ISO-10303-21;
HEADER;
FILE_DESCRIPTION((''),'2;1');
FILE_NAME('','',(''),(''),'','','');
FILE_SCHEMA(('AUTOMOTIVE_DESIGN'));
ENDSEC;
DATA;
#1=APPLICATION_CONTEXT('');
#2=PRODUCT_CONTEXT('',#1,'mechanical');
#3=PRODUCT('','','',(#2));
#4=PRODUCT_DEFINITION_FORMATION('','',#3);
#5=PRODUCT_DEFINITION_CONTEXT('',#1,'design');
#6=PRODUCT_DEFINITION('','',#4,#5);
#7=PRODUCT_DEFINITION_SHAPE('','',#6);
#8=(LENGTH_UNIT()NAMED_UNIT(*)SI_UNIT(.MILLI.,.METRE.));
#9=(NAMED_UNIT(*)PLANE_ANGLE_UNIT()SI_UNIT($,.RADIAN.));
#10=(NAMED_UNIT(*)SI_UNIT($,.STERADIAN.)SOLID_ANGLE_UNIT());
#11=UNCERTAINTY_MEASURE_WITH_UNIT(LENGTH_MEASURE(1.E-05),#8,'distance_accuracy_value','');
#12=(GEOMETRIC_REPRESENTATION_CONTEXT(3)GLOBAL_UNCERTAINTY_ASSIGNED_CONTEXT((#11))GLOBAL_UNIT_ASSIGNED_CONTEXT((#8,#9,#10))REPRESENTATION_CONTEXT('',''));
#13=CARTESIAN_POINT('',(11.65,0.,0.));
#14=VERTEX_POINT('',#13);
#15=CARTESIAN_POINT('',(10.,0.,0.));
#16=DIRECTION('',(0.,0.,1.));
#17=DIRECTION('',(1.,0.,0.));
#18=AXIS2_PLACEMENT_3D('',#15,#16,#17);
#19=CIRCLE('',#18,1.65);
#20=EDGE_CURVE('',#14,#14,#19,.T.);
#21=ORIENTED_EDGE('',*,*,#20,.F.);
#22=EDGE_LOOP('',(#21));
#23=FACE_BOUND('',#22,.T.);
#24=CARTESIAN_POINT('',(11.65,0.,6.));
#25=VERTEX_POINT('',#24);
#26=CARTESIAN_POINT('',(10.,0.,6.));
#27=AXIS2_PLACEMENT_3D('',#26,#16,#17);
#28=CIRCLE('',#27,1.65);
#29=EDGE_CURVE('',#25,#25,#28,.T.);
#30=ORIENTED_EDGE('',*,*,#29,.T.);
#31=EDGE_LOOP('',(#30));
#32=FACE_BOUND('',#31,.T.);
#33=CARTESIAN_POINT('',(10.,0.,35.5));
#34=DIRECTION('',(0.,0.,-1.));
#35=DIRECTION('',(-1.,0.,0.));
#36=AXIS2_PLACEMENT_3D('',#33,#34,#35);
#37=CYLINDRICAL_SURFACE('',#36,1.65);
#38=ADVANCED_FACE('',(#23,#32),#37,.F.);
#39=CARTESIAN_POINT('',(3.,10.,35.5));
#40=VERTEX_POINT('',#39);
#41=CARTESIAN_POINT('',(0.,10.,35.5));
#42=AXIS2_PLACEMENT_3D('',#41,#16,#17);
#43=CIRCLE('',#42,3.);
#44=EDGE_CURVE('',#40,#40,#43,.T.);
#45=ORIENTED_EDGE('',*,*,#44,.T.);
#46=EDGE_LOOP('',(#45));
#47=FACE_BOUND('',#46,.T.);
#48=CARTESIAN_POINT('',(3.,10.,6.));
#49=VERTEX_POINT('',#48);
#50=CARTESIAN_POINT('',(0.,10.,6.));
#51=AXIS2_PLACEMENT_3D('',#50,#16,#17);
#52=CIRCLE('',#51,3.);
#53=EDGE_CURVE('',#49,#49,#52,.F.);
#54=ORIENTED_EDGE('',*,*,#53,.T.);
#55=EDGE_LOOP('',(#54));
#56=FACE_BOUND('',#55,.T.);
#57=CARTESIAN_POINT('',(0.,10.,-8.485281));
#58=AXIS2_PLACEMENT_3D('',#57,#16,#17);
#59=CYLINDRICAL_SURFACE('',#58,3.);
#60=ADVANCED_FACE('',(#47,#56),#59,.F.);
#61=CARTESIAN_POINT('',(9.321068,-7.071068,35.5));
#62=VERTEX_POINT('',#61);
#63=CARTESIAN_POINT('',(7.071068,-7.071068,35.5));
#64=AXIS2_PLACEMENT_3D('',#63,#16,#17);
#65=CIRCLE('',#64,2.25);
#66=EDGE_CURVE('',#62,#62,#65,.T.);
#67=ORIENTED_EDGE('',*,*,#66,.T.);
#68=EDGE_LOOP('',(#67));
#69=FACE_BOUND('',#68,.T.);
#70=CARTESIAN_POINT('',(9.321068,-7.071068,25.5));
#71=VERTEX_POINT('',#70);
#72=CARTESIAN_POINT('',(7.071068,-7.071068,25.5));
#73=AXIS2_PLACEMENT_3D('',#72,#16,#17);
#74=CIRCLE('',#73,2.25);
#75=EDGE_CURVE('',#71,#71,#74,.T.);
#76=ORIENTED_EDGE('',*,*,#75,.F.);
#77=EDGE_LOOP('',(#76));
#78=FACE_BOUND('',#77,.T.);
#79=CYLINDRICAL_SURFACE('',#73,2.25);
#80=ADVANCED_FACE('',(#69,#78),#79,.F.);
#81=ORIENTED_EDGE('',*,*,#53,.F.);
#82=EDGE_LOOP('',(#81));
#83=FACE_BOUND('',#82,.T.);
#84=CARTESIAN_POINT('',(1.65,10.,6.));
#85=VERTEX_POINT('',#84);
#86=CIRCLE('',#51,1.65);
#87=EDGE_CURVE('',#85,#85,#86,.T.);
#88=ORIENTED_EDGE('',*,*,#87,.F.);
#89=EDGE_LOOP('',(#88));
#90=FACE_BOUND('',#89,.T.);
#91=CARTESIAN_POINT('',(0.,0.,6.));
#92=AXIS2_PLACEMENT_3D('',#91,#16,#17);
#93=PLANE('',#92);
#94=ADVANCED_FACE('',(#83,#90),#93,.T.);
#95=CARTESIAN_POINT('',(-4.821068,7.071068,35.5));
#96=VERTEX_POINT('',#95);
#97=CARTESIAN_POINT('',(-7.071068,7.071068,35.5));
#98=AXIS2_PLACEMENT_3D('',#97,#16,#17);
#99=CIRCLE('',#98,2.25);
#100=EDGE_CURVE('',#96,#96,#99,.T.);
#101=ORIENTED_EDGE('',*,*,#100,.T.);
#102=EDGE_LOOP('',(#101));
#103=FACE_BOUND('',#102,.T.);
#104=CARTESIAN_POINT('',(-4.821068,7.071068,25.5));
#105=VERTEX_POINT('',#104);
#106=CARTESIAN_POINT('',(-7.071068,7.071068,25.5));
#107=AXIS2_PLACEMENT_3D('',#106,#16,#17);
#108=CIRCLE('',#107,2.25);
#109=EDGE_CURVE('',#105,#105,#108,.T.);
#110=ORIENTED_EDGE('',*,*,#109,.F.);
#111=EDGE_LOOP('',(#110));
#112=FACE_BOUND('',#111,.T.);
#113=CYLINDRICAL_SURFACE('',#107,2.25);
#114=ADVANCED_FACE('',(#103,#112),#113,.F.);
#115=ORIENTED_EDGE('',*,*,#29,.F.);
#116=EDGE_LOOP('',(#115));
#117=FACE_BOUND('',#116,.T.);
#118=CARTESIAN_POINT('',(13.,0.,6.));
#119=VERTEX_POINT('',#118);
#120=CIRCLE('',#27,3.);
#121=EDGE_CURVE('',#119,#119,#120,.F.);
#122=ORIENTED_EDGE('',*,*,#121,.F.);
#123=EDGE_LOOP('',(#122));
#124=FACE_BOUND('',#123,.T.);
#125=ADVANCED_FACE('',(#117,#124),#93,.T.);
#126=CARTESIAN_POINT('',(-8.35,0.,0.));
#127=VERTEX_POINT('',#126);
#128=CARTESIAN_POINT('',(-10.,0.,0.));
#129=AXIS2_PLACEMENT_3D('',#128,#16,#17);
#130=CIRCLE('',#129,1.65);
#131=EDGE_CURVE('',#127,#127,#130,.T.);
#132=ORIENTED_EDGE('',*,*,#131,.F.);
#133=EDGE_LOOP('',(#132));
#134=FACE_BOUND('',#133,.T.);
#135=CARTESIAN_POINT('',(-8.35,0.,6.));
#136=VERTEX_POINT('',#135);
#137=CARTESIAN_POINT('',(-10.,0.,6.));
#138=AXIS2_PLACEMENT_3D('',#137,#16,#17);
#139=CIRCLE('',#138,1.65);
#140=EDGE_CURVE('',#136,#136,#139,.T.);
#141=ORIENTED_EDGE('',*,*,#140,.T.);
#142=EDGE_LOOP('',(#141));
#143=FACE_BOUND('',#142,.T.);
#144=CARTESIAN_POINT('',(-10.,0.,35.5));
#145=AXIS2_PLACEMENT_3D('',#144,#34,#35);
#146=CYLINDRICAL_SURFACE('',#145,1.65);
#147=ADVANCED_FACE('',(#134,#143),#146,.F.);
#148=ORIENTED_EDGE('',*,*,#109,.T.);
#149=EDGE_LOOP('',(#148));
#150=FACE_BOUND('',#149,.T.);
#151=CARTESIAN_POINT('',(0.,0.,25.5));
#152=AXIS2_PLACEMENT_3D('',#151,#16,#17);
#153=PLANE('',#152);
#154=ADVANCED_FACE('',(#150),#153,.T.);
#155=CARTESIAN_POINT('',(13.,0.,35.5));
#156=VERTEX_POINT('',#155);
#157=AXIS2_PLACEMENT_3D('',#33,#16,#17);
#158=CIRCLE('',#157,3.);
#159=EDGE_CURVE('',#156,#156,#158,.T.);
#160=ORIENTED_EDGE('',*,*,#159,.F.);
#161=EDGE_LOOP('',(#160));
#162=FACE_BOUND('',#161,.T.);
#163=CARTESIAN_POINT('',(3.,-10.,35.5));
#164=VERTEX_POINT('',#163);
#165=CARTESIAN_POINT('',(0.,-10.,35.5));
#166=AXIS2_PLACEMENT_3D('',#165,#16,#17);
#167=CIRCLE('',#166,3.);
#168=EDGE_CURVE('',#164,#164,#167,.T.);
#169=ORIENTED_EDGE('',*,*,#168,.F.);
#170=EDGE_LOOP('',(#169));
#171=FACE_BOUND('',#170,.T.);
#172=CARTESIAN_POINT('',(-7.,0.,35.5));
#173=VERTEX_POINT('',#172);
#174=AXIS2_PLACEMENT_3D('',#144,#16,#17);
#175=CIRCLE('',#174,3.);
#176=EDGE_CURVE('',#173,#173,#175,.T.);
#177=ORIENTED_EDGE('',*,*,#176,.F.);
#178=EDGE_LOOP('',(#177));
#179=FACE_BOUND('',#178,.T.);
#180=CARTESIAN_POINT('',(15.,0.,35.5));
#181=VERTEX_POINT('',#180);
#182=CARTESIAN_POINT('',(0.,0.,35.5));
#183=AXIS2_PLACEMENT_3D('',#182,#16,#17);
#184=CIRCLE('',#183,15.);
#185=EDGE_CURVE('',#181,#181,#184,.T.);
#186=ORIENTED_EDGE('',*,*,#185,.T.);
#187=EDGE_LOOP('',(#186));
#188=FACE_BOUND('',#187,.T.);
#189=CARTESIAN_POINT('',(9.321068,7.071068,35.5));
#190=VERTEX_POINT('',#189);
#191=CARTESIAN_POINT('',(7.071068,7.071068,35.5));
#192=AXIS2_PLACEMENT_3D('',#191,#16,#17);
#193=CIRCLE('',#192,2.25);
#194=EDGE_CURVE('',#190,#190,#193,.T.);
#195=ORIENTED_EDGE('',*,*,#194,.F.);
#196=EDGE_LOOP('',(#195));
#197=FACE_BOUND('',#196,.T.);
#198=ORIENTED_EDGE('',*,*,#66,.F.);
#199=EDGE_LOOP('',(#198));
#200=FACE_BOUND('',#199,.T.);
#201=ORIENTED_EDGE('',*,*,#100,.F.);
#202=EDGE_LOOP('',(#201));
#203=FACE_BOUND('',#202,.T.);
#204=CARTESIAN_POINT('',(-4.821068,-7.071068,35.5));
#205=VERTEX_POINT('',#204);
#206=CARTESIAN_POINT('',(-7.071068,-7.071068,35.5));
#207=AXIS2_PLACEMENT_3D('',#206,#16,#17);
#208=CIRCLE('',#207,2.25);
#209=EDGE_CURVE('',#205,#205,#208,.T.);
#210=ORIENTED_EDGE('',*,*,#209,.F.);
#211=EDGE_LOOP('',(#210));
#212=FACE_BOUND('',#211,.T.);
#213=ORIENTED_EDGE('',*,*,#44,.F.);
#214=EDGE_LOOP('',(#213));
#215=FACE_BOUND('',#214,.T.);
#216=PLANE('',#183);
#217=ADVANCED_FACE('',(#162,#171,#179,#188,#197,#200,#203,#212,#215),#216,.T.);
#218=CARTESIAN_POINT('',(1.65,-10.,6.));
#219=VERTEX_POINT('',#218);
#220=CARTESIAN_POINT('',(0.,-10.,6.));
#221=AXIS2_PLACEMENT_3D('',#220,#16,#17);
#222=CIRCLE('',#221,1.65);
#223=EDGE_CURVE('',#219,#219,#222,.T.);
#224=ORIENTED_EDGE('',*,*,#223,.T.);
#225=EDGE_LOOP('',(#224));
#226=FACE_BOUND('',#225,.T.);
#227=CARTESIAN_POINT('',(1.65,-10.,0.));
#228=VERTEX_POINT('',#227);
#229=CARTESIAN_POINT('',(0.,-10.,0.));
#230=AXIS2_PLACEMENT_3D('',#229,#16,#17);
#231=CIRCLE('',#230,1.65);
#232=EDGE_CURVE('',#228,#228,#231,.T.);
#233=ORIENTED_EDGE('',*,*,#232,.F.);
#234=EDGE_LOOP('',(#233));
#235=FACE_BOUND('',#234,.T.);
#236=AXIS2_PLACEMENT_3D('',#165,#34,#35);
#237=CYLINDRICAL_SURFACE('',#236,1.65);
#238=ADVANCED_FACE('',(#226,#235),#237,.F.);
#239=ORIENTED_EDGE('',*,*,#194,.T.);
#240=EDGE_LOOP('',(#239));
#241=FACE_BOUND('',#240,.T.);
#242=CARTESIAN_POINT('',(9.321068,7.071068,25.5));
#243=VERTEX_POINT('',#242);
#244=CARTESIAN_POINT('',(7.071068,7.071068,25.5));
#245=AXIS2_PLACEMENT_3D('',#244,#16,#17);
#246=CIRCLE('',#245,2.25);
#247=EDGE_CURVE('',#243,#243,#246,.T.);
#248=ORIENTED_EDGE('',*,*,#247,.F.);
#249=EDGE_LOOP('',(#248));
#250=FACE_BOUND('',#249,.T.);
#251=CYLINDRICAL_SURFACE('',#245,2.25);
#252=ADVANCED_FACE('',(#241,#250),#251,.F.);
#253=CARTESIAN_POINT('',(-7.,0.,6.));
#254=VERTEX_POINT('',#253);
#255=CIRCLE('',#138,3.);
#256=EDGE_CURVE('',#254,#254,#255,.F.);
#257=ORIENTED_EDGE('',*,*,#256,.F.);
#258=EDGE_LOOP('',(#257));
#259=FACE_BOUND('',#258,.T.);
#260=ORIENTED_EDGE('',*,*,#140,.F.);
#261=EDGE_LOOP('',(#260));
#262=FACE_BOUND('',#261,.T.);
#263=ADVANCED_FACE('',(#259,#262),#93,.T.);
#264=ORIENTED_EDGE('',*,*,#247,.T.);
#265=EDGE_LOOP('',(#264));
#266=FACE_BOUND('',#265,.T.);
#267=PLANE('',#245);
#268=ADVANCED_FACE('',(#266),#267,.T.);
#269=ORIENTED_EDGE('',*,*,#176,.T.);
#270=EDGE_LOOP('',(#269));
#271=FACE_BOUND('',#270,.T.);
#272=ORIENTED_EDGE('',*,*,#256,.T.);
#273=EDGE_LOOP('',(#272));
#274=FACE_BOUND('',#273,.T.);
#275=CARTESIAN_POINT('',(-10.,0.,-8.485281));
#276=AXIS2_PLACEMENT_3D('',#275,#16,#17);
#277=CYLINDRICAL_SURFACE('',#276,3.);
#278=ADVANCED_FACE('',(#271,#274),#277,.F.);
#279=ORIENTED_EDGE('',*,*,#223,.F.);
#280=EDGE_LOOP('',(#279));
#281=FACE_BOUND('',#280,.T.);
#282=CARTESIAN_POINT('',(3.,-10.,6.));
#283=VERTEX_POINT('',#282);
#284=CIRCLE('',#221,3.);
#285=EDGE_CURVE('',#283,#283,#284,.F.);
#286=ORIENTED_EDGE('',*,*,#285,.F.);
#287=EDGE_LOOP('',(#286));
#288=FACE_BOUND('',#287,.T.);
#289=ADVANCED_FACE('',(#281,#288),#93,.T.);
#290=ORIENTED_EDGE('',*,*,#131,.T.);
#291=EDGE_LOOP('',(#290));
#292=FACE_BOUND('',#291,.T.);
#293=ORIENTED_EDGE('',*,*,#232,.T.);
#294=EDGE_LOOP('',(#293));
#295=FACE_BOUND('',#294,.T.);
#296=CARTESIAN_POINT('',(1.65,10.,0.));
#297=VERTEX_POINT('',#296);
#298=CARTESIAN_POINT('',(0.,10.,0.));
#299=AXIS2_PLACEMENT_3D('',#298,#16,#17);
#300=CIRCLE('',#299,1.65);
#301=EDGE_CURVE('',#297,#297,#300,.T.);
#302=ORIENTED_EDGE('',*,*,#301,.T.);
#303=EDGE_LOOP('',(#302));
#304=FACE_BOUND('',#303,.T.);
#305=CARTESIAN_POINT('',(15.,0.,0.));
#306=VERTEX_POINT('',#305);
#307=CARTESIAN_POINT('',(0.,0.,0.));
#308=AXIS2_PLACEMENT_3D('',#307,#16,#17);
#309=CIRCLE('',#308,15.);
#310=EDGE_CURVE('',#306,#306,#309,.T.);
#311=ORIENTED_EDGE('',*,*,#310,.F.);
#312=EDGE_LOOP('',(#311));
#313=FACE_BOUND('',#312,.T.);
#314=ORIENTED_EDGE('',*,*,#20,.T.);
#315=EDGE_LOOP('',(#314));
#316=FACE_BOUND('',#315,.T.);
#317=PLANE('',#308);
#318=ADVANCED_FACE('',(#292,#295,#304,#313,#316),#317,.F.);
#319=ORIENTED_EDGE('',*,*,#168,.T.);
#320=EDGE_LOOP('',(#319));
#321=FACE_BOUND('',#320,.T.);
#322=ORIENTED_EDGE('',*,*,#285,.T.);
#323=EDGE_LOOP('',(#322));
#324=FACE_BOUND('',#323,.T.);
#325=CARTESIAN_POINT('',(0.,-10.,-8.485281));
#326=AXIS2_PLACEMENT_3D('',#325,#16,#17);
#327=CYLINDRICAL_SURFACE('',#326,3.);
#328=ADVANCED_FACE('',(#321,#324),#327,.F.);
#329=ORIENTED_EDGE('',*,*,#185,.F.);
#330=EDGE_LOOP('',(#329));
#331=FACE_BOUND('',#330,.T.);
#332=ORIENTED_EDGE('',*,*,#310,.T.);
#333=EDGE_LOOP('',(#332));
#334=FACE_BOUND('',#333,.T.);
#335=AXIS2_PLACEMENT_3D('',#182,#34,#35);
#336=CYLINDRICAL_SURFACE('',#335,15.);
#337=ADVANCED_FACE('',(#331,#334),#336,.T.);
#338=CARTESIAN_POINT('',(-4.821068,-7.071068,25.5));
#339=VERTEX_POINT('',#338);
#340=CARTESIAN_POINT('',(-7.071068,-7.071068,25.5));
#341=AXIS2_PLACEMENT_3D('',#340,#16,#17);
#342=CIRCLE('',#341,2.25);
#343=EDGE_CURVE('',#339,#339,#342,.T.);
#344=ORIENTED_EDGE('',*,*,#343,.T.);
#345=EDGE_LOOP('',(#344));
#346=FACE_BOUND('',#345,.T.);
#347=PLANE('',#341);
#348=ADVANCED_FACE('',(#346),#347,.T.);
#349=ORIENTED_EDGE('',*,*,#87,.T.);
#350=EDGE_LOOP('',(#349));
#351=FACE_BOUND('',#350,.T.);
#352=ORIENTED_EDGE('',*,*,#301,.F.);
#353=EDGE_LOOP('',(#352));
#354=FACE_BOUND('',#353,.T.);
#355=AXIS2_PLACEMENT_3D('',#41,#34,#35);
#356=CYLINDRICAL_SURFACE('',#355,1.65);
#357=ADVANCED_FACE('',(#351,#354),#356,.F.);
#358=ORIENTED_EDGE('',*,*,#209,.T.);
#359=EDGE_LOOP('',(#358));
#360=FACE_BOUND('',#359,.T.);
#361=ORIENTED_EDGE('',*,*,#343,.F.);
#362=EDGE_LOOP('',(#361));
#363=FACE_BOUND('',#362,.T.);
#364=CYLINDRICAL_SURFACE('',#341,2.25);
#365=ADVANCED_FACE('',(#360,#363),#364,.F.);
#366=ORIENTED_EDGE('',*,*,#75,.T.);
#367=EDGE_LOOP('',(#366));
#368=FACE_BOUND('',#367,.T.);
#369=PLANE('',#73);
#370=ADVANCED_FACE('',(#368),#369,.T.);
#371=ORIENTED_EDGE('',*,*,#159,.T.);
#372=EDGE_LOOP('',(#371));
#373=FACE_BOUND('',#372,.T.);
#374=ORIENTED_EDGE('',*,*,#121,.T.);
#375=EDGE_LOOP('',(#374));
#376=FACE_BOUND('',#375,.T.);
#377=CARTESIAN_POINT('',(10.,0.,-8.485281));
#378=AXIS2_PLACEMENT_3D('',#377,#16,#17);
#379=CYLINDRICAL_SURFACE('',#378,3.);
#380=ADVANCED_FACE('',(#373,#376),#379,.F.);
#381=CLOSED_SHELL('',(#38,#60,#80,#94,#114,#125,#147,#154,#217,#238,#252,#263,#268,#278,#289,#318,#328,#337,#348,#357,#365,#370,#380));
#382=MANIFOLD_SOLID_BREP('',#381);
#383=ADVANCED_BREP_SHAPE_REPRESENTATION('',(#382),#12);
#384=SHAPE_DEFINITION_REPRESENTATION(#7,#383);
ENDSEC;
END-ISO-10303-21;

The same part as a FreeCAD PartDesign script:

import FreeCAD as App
import Part
import Sketcher
from FreeCAD import Vector

doc = App.newDocument("Part")
params = doc.addObject("Spreadsheet::Sheet", "Params")
for row, (alias, value) in enumerate([
    ("sketch1_diameter", "30 mm"),
    ("sketch1_diameter2", "3.3 mm"),
    ("pad1_length", "35.5 mm"),
    ("sketch2_diameter", "4.5 mm"),
    ("pocket1_length", "10 mm"),
    ("sketch3_diameter", "6 mm"),
    ("pocket2_length", "29.5 mm"),
], start=1):
    params.set(f"A{row}", alias)
    params.set(f"B{row}", "=" + value)
    params.setAlias(f"B{row}", alias)

body = doc.addObject("PartDesign::Body", "Body")

# Sketch on XY plane
sketch1 = doc.addObject("Sketcher::SketchObject", "Sketch")
body.addObject(sketch1)
sketch1.AttachmentSupport = (doc.XY_Plane, [""])
sketch1.MapMode = "FlatFace"
sketch1.addGeometry([
    Part.Circle(Vector(0, 0, 0), Vector(0, 0, 1), 15),  # 0
    Part.Circle(Vector(0, -10, 0), Vector(0, 0, 1), 1.6),  # 1
    Part.Circle(Vector(-10, 0, 0), Vector(0, 0, 1), 1.6),  # 2
    Part.Circle(Vector(10, 0, 0), Vector(0, 0, 1), 1.6),  # 3
    Part.Circle(Vector(0, 10, 0), Vector(0, 0, 1), 1.6),  # 4
], False)
sketch1.addConstraint([
    Sketcher.Constraint("Coincident", 0, 3, -1, 1),
    Sketcher.Constraint("Equal", 1, 2),
    Sketcher.Constraint("Equal", 2, 3),
    Sketcher.Constraint("Equal", 3, 4),
    Sketcher.Constraint("Symmetric", 2, 3, 3, 3, -1, 1),
    Sketcher.Constraint("Symmetric", 1, 3, 4, 3, -1, 1),
    Sketcher.Constraint("PointOnObject", 1, 3, -2),
    Sketcher.Constraint("PointOnObject", 2, 3, -1),
    Sketcher.Constraint("Diameter", 0, 30.0),
    Sketcher.Constraint("Diameter", 1, 3.3),
    Sketcher.Constraint("DistanceY", 1, 3, -1, 1, 10.0),
    Sketcher.Constraint("DistanceX", 2, 3, -1, 1, 10.0),
])
sketch1.setExpression("Constraints[8]", "Params.sketch1_diameter")
sketch1.setExpression("Constraints[9]", "Params.sketch1_diameter2")
pad1 = doc.addObject("PartDesign::Pad", "Pad")
body.addObject(pad1)
pad1.Profile = sketch1
pad1.setExpression("Length", "Params.pad1_length")

# Sketch on XY plane
sketch2 = doc.addObject("Sketcher::SketchObject", "Sketch001")
body.addObject(sketch2)
sketch2.AttachmentSupport = (doc.XY_Plane, [""])
sketch2.MapMode = "FlatFace"
sketch2.AttachmentOffset = App.Placement(Vector(0, 0, 35.5), App.Rotation())
sketch2.addGeometry([
    Part.Circle(Vector(7.1, 7.1, 0), Vector(0, 0, 1), 2.2),
    Part.Circle(Vector(7.1, -7.1, 0), Vector(0, 0, 1), 2.2),
    Part.Circle(Vector(-7.1, -7.1, 0), Vector(0, 0, 1), 2.2),
    Part.Circle(Vector(-7.1, 7.1, 0), Vector(0, 0, 1), 2.2),
], False)
sketch2.addConstraint([
    Sketcher.Constraint("Equal", 0, 1),
    Sketcher.Constraint("Equal", 1, 2),
    Sketcher.Constraint("Equal", 2, 3),
    Sketcher.Constraint("Symmetric", 0, 3, 2, 3, -1, 1),
    Sketcher.Constraint("Symmetric", 1, 3, 3, 3, -1, 1),
    Sketcher.Constraint("Symmetric", 1, 3, 2, 3, -2),
    Sketcher.Constraint("Diameter", 0, 4.5),
    Sketcher.Constraint("DistanceX", -1, 1, 0, 3, 7.071068),
    Sketcher.Constraint("DistanceY", -1, 1, 0, 3, 7.071068),
])
sketch2.setExpression("Constraints[6]", "Params.sketch2_diameter")
pocket1 = doc.addObject("PartDesign::Pocket", "Pocket")
body.addObject(pocket1)
pocket1.Profile = sketch2
pocket1.setExpression("Length", "Params.pocket1_length")

# Sketch on XY plane
sketch3 = doc.addObject("Sketcher::SketchObject", "Sketch002")
body.addObject(sketch3)
sketch3.AttachmentSupport = (doc.XY_Plane, [""])
sketch3.MapMode = "FlatFace"
sketch3.AttachmentOffset = App.Placement(Vector(0, 0, 35.5), App.Rotation())
sketch3.addGeometry([
    Part.Circle(Vector(0, 10, 0), Vector(0, 0, 1), 3),
    Part.Circle(Vector(10, 0, 0), Vector(0, 0, 1), 3),
    Part.Circle(Vector(0, -10, 0), Vector(0, 0, 1), 3),
    Part.Circle(Vector(-10, 0, 0), Vector(0, 0, 1), 3),
], False)
sketch3.addConstraint([
    Sketcher.Constraint("Equal", 0, 1),
    Sketcher.Constraint("Equal", 1, 2),
    Sketcher.Constraint("Equal", 2, 3),
    Sketcher.Constraint("Symmetric", 0, 3, 2, 3, -1, 1),
    Sketcher.Constraint("Symmetric", 1, 3, 3, 3, -1, 1),
    Sketcher.Constraint("PointOnObject", 0, 3, -2),
    Sketcher.Constraint("PointOnObject", 1, 3, -1),
    Sketcher.Constraint("Diameter", 0, 6.0),
    Sketcher.Constraint("DistanceY", -1, 1, 0, 3, 10.0),
    Sketcher.Constraint("DistanceX", -1, 1, 1, 3, 10.0),
])
sketch3.setExpression("Constraints[7]", "Params.sketch3_diameter")
pocket2 = doc.addObject("PartDesign::Pocket", "Pocket001")
body.addObject(pocket2)
pocket2.Profile = sketch3
pocket2.setExpression("Length", "Params.pocket2_length")

doc.recompute()
